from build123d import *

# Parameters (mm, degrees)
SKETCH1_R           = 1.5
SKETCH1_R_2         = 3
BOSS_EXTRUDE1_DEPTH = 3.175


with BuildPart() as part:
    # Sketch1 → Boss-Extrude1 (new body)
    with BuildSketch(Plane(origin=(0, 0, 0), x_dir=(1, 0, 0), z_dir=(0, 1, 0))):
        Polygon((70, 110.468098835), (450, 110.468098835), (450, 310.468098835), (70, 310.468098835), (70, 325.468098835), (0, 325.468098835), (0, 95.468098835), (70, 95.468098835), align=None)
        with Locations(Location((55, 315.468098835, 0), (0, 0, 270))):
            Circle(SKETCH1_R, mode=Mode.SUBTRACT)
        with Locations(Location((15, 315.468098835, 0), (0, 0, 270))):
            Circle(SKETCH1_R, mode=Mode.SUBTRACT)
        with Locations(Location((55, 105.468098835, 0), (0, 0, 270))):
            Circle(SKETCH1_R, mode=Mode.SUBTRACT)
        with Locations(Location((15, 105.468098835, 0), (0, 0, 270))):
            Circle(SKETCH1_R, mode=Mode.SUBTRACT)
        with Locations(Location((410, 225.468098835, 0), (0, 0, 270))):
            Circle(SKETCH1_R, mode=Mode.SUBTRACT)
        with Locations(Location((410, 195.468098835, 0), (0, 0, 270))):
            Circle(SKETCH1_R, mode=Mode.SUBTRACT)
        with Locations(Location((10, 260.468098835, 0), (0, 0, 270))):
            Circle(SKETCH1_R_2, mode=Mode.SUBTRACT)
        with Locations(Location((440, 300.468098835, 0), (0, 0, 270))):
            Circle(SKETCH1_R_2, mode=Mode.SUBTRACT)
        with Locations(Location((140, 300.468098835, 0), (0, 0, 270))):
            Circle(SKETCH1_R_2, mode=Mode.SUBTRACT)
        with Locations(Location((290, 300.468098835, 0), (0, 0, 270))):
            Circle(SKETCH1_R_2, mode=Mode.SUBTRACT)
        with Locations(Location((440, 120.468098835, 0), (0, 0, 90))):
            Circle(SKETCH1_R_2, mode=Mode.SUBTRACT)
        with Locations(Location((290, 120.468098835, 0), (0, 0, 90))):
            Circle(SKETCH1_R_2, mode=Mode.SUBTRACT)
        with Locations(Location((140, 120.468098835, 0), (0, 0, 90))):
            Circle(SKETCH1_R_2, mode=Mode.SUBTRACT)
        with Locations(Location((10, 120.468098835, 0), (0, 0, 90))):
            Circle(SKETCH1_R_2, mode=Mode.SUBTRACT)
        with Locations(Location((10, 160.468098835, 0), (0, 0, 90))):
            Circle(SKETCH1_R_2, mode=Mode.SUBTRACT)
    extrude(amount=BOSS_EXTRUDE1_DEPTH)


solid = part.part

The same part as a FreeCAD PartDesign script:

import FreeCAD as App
import Part
import Sketcher

V = App.Vector

doc = App.newDocument("Part")
body = doc.addObject("PartDesign::Body", "Body")

sketch1 = body.newObject("Sketcher::SketchObject", "Sketch")
sketch1.AttachmentSupport = (doc.getObject("XZ_Plane"), [""])
sketch1.MapMode = "FlatFace"
sketch1.addGeometry(Part.LineSegment(V(70, -110.5, 0), V(450, -110.5, 0)), False)
sketch1.addGeometry(Part.LineSegment(V(450, -110.5, 0), V(450, -310.5, 0)), False)
sketch1.addGeometry(Part.LineSegment(V(450, -310.5, 0), V(70, -310.5, 0)), False)
sketch1.addGeometry(Part.LineSegment(V(70, -310.5, 0), V(70, -325.5, 0)), False)
sketch1.addGeometry(Part.LineSegment(V(70, -325.5, 0), V(0, -325.5, 0)), False)
sketch1.addGeometry(Part.LineSegment(V(0, -325.5, 0), V(0, -95.5, 0)), False)
sketch1.addGeometry(Part.LineSegment(V(0, -95.5, 0), V(70, -95.5, 0)), False)
sketch1.addGeometry(Part.LineSegment(V(70, -95.5, 0), V(70, -110.5, 0)), False)
sketch1.addGeometry(Part.Circle(V(15, -105.5, 0), V(0, 0, 1), 1.5), False)
sketch1.addGeometry(Part.Circle(V(55, -105.5, 0), V(0, 0, 1), 1.5), False)
sketch1.addGeometry(Part.Circle(V(10, -120.5, 0), V(0, 0, 1), 3), False)
sketch1.addGeometry(Part.Circle(V(140, -120.5, 0), V(0, 0, 1), 3), False)
sketch1.addGeometry(Part.Circle(V(10, -160.5, 0), V(0, 0, 1), 3), False)
sketch1.addGeometry(Part.Circle(V(290, -120.5, 0), V(0, 0, 1), 3), False)
sketch1.addGeometry(Part.Circle(V(440, -120.5, 0), V(0, 0, 1), 3), False)
sketch1.addGeometry(Part.Circle(V(410, -195.5, 0), V(0, 0, 1), 1.5), False)
sketch1.addGeometry(Part.Circle(V(10, -260.5, 0), V(0, 0, 1), 3), False)
sketch1.addGeometry(Part.Circle(V(15, -315.5, 0), V(0, 0, 1), 1.5), False)
sketch1.addGeometry(Part.Circle(V(55, -315.5, 0), V(0, 0, 1), 1.5), False)
sketch1.addGeometry(Part.Circle(V(140, -300.5, 0), V(0, 0, 1), 3), False)
sketch1.addGeometry(Part.Circle(V(410, -225.5, 0), V(0, 0, 1), 1.5), False)
sketch1.addGeometry(Part.Circle(V(290, -300.5, 0), V(0, 0, 1), 3), False)
sketch1.addGeometry(Part.Circle(V(440, -300.5, 0), V(0, 0, 1), 3), False)
sketch1.addConstraint(Sketcher.Constraint("Coincident", 0, 2, 1, 1))
sketch1.addConstraint(Sketcher.Constraint("Coincident", 1, 2, 2, 1))
sketch1.addConstraint(Sketcher.Constraint("Coincident", 2, 2, 3, 1))
sketch1.addConstraint(Sketcher.Constraint("Coincident", 3, 2, 4, 1))
sketch1.addConstraint(Sketcher.Constraint("Coincident", 4, 2, 5, 1))
sketch1.addConstraint(Sketcher.Constraint("Coincident", 5, 2, 6, 1))
sketch1.addConstraint(Sketcher.Constraint("Coincident", 6, 2, 7, 1))
sketch1.addConstraint(Sketcher.Constraint("Coincident", 7, 2, 0, 1))
sketch1.addConstraint(Sketcher.Constraint("Horizontal", 0))
sketch1.addConstraint(Sketcher.Constraint("Vertical", 1))
sketch1.addConstraint(Sketcher.Constraint("Horizontal", 2))
sketch1.addConstraint(Sketcher.Constraint("Vertical", 3))
sketch1.addConstraint(Sketcher.Constraint("Horizontal", 4))
sketch1.addConstraint(Sketcher.Constraint("Vertical", 5))
sketch1.addConstraint(Sketcher.Constraint("Horizontal", 6))
sketch1.addConstraint(Sketcher.Constraint("Vertical", 7))
sketch1.addConstraint(Sketcher.Constraint("Equal", 8, 9))
sketch1.addConstraint(Sketcher.Constraint("Equal", 10, 11))
sketch1.addConstraint(Sketcher.Constraint("Equal", 11, 12))
sketch1.addConstraint(Sketcher.Constraint("Equal", 12, 13))
sketch1.addConstraint(Sketcher.Constraint("Equal", 13, 14))
sketch1.addConstraint(Sketcher.Constraint("Equal", 9, 15))
sketch1.addConstraint(Sketcher.Constraint("Equal", 14, 16))
sketch1.addConstraint(Sketcher.Constraint("Equal", 15, 17))
sketch1.addConstraint(Sketcher.Constraint("Equal", 17, 18))
sketch1.addConstraint(Sketcher.Constraint("Equal", 16, 19))
sketch1.addConstraint(Sketcher.Constraint("Equal", 18, 20))
sketch1.addConstraint(Sketcher.Constraint("Equal", 19, 21))
sketch1.addConstraint(Sketcher.Constraint("Equal", 21, 22))
sketch1.addConstraint(Sketcher.Constraint("PointOnObject", 4, 2, -2))
sketch1.addConstraint(Sketcher.Constraint("Horizontal", 8, 3, 9, 3))
sketch1.addConstraint(Sketcher.Constraint("Horizontal", 10, 3, 11, 3))
sketch1.addConstraint(Sketcher.Constraint("Horizontal", 11, 3, 13, 3))
sketch1.addConstraint(Sketcher.Constraint("Horizontal", 13, 3, 14, 3))
sketch1.addConstraint(Sketcher.Constraint("Horizontal", 17, 3, 18, 3))
sketch1.addConstraint(Sketcher.Constraint("Horizontal", 19, 3, 21, 3))
sketch1.addConstraint(Sketcher.Constraint("Horizontal", 21, 3, 22, 3))
sketch1.addConstraint(Sketcher.Constraint("Vertical", 10, 3, 12, 3))
sketch1.addConstraint(Sketcher.Constraint("Vertical", 12, 3, 16, 3))
sketch1.addConstraint(Sketcher.Constraint("Vertical", 8, 3, 17, 3))
sketch1.addConstraint(Sketcher.Constraint("Vertical", 9, 3, 18, 3))
sketch1.addConstraint(Sketcher.Constraint("Vertical", 11, 3, 19, 3))
sketch1.addConstraint(Sketcher.Constraint("Vertical", 15, 3, 20, 3))
sketch1.addConstraint(Sketcher.Constraint("Vertical", 13, 3, 21, 3))
sketch1.addConstraint(Sketcher.Constraint("Vertical", 14, 3, 22, 3))
sketch1.addConstraint(Sketcher.Constraint("Vertical", 3, 2, 6, 2))
sketch1.addConstraint(Sketcher.Constraint("Equal", 3, 7))
sketch1.addConstraint(Sketcher.Constraint("Diameter", 8, 3.0))
sketch1.addConstraint(Sketcher.Constraint("Diameter", 10, 6.0))
sketch1.addConstraint(Sketcher.Constraint("DistanceX", 0, 1, 0, 2, 380.0))
sketch1.addConstraint(Sketcher.Constraint("DistanceX", 4, 2, 4, 1, 70.0))
sketch1.addConstraint(Sketcher.Constraint("DistanceY", 1, 2, 1, 1, 200.0))
sketch1.addConstraint(Sketcher.Constraint("DistanceY", 3, 2, 3, 1, 15.0))
sketch1.addConstraint(Sketcher.Constraint("DistanceX", -1, 1, 8, 3, 15.0))
sketch1.addConstraint(Sketcher.Constraint("DistanceX", -1, 1, 9, 3, 55.0))
sketch1.addConstraint(Sketcher.Constraint("DistanceX", -1, 1, 10, 3, 10.0))
sketch1.addConstraint(Sketcher.Constraint("DistanceX", -1, 1, 11, 3, 140.0))
sketch1.addConstraint(Sketcher.Constraint("DistanceX", -1, 1, 13, 3, 290.0))
sketch1.addConstraint(Sketcher.Constraint("DistanceX", -1, 1, 14, 3, 440.0))
sketch1.addConstraint(Sketcher.Constraint("DistanceX", -1, 1, 15, 3, 410.0))
sketch1.addConstraint(Sketcher.Constraint("DistanceY", 10, 3, 8, 3, 15.0))
sketch1.addConstraint(Sketcher.Constraint("DistanceY", 12, 3, 10, 3, 40.0))
sketch1.addConstraint(Sketcher.Constraint("DistanceY", 15, 3, 14, 3, 75.0))
sketch1.addConstraint(Sketcher.Constraint("DistanceY", 16, 3, 12, 3, 100.0))
sketch1.addConstraint(Sketcher.Constraint("DistanceY", 17, 3, 16, 3, 55.0))
sketch1.addConstraint(Sketcher.Constraint("DistanceY", 18, 3, 19, 3, 15.0))
sketch1.addConstraint(Sketcher.Constraint("DistanceY", 20, 3, 15, 3, 30.0))
sketch1.addConstraint(Sketcher.Constraint("DistanceY", 14, 3, 0, 2, 10.0))
sketch1.addConstraint(Sketcher.Constraint("DistanceY", 8, 3, -1, 1, 105.468099))
pad1 = body.newObject("PartDesign::Pad", "Pad")
pad1.Profile = sketch1
pad1.Length = 3.175
pad1.Reversed = True

doc.recompute()
